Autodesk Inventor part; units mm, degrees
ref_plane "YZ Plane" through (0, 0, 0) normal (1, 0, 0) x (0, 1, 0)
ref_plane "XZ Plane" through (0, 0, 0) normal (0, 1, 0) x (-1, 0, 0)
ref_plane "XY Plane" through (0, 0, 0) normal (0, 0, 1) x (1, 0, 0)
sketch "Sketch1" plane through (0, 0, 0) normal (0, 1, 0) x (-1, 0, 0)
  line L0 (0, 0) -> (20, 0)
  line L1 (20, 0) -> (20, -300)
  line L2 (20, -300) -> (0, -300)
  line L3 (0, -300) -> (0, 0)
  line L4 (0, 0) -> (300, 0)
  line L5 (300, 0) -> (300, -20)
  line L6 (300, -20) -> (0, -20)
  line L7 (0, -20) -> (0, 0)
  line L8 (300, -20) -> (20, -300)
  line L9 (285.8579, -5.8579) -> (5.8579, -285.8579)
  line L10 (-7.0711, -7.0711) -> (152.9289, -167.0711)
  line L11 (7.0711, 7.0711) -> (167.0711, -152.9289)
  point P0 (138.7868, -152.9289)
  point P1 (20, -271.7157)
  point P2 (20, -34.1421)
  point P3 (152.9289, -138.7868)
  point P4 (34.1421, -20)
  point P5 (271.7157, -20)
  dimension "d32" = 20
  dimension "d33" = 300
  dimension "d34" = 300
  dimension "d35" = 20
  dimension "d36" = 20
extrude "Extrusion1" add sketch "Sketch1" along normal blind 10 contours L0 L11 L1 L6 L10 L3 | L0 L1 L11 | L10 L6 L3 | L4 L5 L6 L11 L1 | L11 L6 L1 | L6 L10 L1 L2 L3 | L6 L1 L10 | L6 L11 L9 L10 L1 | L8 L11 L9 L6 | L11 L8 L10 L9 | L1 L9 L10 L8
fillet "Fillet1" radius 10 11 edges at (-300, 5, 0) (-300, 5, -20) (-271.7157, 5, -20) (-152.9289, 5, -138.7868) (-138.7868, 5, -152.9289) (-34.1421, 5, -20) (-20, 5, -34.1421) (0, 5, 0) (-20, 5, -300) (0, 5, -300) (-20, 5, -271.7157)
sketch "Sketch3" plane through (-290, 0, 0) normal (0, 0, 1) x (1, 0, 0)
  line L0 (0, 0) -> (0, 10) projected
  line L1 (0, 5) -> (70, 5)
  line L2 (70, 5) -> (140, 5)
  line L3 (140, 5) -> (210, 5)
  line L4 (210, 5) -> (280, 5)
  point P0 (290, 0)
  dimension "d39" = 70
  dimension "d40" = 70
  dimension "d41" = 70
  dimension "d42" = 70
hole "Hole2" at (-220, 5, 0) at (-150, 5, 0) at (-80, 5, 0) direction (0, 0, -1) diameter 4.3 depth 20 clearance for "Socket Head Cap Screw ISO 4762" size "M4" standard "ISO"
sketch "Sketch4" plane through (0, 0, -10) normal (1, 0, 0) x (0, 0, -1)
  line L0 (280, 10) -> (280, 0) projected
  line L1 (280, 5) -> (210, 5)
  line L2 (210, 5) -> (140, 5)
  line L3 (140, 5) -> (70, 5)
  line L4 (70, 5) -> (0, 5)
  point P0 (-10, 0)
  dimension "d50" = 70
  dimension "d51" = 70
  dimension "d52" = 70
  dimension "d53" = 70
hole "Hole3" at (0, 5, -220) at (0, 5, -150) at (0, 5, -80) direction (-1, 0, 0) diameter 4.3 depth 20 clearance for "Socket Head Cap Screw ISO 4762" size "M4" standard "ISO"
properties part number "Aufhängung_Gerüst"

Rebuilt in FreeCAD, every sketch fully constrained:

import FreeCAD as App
import Part
import Sketcher

V = App.Vector
Q = App.Units.Quantity


def edges_at(feature, points):
    """Names of the edges that pass closest to the given points."""
    edges = feature.Shape.Edges
    near = lambda p: min(range(len(edges)), key=lambda i: edges[i].distToShape(Part.Vertex(*p))[0])
    return sorted({f"Edge{near(p) + 1}" for p in points})


def add_polygon(sketch, points):
    """Adds a closed chain of lines whose ends are joined by coincident constraints."""
    first, n = sketch.GeometryCount, len(points)
    for a, b in zip(points, points[1:] + points[:1]):
        sketch.addGeometry(Part.LineSegment(App.Vector(*a, 0), App.Vector(*b, 0)), False)
    for i in range(n):
        sketch.addConstraint(Sketcher.Constraint("Coincident", first + i, 2, first + (i + 1) % n, 1))

doc = App.newDocument("Part")
body = doc.addObject("PartDesign::Body", "Body")

sketch1 = doc.addObject("Sketcher::SketchObject", "Sketch")
body.addObject(sketch1)
sketch1.AttachmentSupport = (doc.XZ_Plane, [""])
sketch1.MapMode = "FlatFace"
add_polygon(sketch1, [(0, 0), (0, -300), (-20, -300), (-300, -20), (-300, 0)])
add_polygon(sketch1, [(-34, -20), (-272, -20), (-153, -139)])
add_polygon(sketch1, [(-20, -34), (-139, -153), (-20, -272)])
sketch1.addConstraint([
    Sketcher.Constraint("Vertical", 0),
    Sketcher.Constraint("Horizontal", 1),
    Sketcher.Constraint("Vertical", 3),
    Sketcher.Constraint("Horizontal", 4),
    Sketcher.Constraint("Horizontal", 5),
    Sketcher.Constraint("Vertical", 10),
    Sketcher.Constraint("Coincident", 4, 2, -1, 1),
    Sketcher.Constraint("Parallel", 2, 6),
    Sketcher.Constraint("Perpendicular", 6, 7),
    Sketcher.Constraint("Parallel", 7, 8),
    Sketcher.Constraint("Perpendicular", 8, 9),
    Sketcher.Constraint("Horizontal", 2, 2, 5, 2),
    Sketcher.Constraint("Vertical", 1, 2, 9, 2),
    Sketcher.Constraint("Equal", 4, 0),
    Sketcher.Constraint("Equal", 1, 3),
    Sketcher.Constraint("Equal", 5, 10),
    Sketcher.Constraint("DistanceX", 1, 2, 1, 1, Q("20 mm")),
    Sketcher.Constraint("DistanceX", 4, 1, 4, 2, Q("300 mm")),
    Sketcher.Constraint("Distance", 6, Q("167.99 mm")),
    Sketcher.Constraint("DistanceX", 6, 2, -1, 1, Q("152.929 mm")),
    Sketcher.Constraint("DistanceY", 8, 2, -1, 1, Q("152.929 mm")),
])
pad1 = doc.addObject("PartDesign::Pad", "Pad")
body.addObject(pad1)
pad1.Profile = sketch1
pad1.Length = 10
pad1.Reversed = True
doc.recompute()

fillet = doc.addObject("PartDesign::Fillet", "Fillet")
body.addObject(fillet)
fillet.Base = (pad1, edges_at(pad1, [
    (-300, 5, 0),
    (-300, 5, -20),
    (-271.716, 5, -20),
    (-152.929, 5, -138.787),
    (-138.787, 5, -152.929),
    (-34.142, 5, -20),
    (-20, 5, -34.142),
    (0, 5, 0),
    (-20, 5, -300),
    (0, 5, -300),
    (-20, 5, -271.716),
]))
fillet.Radius = 10

sketch2 = doc.addObject("Sketcher::SketchObject", "Sketch001")
body.addObject(sketch2)
sketch2.AttachmentSupport = (doc.XY_Plane, [""])
sketch2.MapMode = "FlatFace"
sketch2.addGeometry([
    Part.Circle(V(-220, 5, 0), V(0, 0, 1), 2.1),
    Part.Circle(V(-150, 5, 0), V(0, 0, 1), 2.1),
    Part.Circle(V(-80, 5, 0), V(0, 0, 1), 2.1),
], False)
sketch2.addConstraint([
    Sketcher.Constraint("Equal", 0, 1),
    Sketcher.Constraint("Equal", 1, 2),
    Sketcher.Constraint("Horizontal", 0, 3, 1, 3),
    Sketcher.Constraint("Horizontal", 1, 3, 2, 3),
    Sketcher.Constraint("Diameter", 0, Q("4.3 mm")),
    Sketcher.Constraint("DistanceX", 0, 3, -1, 1, Q("220 mm")),
    Sketcher.Constraint("DistanceY", -1, 1, 0, 3, Q("5 mm")),
    Sketcher.Constraint("DistanceX", 1, 3, -1, 1, Q("150 mm")),
    Sketcher.Constraint("DistanceX", 2, 3, -1, 1, Q("80 mm")),
])
doc.recompute()
hole = doc.addObject("PartDesign::Hole", "Hole")
body.addObject(hole)
hole.Profile = sketch2
hole.ThreadType = "None"
hole.Diameter = 4.3
hole.DepthType = "Dimension"
hole.Depth = 20
hole.DrillPoint = "Flat"

sketch3 = doc.addObject("Sketcher::SketchObject", "Sketch002")
body.addObject(sketch3)
sketch3.AttachmentSupport = (doc.YZ_Plane, [""])
sketch3.MapMode = "FlatFace"
sketch3.addGeometry([
    Part.Circle(V(5, -220, 0), V(0, 0, 1), 2.1),
    Part.Circle(V(5, -150, 0), V(0, 0, 1), 2.1),
    Part.Circle(V(5, -80, 0), V(0, 0, 1), 2.1),
], False)
sketch3.addConstraint([
    Sketcher.Constraint("Equal", 0, 1),
    Sketcher.Constraint("Equal", 1, 2),
    Sketcher.Constraint("Vertical", 0, 3, 1, 3),
    Sketcher.Constraint("Vertical", 1, 3, 2, 3),
    Sketcher.Constraint("Diameter", 0, Q("4.3 mm")),
    Sketcher.Constraint("DistanceX", -1, 1, 0, 3, Q("5 mm")),
    Sketcher.Constraint("DistanceY", 0, 3, -1, 1, Q("220 mm")),
    Sketcher.Constraint("DistanceY", 1, 3, -1, 1, Q("150 mm")),
    Sketcher.Constraint("DistanceY", 2, 3, -1, 1, Q("80 mm")),
])
doc.recompute()
hole2 = doc.addObject("PartDesign::Hole", "Hole001")
body.addObject(hole2)
hole2.Profile = sketch3
hole2.ThreadType = "None"
hole2.Diameter = 4.3
hole2.DepthType = "Dimension"
hole2.Depth = 20
hole2.DrillPoint = "Flat"

doc.recompute()
